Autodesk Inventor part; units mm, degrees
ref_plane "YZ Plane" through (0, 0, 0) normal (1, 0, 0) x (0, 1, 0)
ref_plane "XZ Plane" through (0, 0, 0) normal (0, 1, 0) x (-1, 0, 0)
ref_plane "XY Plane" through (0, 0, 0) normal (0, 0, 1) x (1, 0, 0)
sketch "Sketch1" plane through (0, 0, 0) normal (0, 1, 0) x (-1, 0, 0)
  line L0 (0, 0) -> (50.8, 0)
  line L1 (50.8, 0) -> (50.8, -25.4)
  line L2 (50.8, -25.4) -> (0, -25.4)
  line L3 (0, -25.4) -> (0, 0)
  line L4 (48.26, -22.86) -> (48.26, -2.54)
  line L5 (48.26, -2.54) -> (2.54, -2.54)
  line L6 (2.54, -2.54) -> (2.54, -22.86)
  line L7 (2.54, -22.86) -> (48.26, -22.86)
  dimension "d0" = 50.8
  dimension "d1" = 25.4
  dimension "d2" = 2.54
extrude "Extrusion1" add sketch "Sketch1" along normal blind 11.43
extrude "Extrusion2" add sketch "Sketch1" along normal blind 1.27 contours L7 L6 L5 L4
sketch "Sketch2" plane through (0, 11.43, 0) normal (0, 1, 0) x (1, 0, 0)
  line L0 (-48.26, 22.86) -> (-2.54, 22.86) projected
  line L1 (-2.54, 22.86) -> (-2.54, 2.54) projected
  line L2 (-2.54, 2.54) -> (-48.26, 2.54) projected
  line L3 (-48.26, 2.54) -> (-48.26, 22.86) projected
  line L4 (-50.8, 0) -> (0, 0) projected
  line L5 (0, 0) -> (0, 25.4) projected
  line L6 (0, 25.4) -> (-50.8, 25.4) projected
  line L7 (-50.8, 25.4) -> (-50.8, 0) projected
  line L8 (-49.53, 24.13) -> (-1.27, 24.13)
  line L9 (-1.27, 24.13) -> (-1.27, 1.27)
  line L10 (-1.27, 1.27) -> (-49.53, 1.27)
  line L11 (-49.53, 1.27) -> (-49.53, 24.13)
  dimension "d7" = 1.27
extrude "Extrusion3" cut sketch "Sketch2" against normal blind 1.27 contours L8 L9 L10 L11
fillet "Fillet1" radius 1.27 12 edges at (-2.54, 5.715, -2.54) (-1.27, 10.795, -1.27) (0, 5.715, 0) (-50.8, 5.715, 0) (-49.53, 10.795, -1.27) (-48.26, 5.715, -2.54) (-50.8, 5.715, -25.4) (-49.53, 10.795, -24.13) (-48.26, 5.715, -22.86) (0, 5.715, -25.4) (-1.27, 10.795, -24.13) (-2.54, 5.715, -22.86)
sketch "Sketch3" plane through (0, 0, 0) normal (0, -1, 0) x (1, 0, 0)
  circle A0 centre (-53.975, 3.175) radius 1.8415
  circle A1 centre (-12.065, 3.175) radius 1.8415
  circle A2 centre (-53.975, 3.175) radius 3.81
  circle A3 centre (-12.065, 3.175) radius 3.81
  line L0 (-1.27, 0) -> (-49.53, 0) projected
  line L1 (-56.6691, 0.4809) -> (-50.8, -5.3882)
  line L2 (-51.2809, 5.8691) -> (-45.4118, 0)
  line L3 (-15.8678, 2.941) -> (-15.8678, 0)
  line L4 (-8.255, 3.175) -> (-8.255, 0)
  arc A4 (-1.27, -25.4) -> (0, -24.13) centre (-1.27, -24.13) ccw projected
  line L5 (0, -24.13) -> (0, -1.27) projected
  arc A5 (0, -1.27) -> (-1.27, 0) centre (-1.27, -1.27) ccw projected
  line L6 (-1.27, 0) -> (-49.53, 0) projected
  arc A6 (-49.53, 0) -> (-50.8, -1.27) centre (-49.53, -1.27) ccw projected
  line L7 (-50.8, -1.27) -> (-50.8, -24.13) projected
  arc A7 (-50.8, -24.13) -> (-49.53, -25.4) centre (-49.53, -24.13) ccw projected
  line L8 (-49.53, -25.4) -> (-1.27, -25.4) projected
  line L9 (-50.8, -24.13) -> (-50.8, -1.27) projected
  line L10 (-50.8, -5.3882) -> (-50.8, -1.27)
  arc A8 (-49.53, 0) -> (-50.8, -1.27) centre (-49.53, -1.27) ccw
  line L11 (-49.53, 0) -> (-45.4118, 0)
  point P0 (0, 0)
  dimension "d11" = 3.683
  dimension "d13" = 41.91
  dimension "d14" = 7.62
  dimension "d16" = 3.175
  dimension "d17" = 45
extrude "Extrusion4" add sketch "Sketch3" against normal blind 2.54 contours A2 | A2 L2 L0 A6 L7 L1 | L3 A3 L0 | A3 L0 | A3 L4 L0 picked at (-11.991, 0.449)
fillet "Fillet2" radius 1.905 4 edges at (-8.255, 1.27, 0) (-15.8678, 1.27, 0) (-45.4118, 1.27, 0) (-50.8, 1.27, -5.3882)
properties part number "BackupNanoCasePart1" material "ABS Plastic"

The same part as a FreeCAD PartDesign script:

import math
import FreeCAD as App
import Part
import Sketcher

V = App.Vector
Q = App.Units.Quantity


def edges_at(feature, points):
    """Names of the edges that pass closest to the given points."""
    edges = feature.Shape.Edges
    near = lambda p: min(range(len(edges)), key=lambda i: edges[i].distToShape(Part.Vertex(*p))[0])
    return sorted({f"Edge{near(p) + 1}" for p in points})

doc = App.newDocument("Part")
params = doc.addObject("Spreadsheet::Sheet", "Params")
for row, (alias, value) in enumerate([
    ("sketch1_width", "2 in"),
    ("sketch1_height", "1 in"),
    ("pad1_length", "0.45 in"),
    ("sketch2_width", "1.8 in"),
    ("sketch2_height", "0.8 in"),
    ("pad2_length", "0.05 in"),
    ("sketch3_width", "1.9 in"),
    ("sketch3_height", "0.9 in"),
    ("pocket1_length", "0.05 in"),
    ("fillet_radius", "0.05 in"),
    ("sketch4_radius", "0.15 in"),
    ("sketch4_diameter", "0.145 in"),
    ("sketch4_height", "0.125 in"),
    ("sketch4_radius2", "0.05 in"),
    ("pad3_length", "0.1 in"),
    ("fillet2_radius", "0.075 in"),
], start=1):
    params.set(f"A{row}", alias)
    params.set(f"B{row}", "=" + value)
    params.setAlias(f"B{row}", alias)

body = doc.addObject("PartDesign::Body", "Body")

sketch1 = body.newObject("Sketcher::SketchObject", "Sketch")
sketch1.AttachmentSupport = (doc.getObject("XZ_Plane"), [""])
sketch1.MapMode = "FlatFace"
sketch1.addGeometry([
    Part.LineSegment(V(-51, 0, 0), V(0, 0, 0)),
    Part.LineSegment(V(0, 0, 0), V(0, -25, 0)),
    Part.LineSegment(V(0, -25, 0), V(-51, -25, 0)),
    Part.LineSegment(V(-51, -25, 0), V(-51, 0, 0)),
    Part.LineSegment(V(-48, -3, 0), V(-48, -23, 0)),
    Part.LineSegment(V(-48, -23, 0), V(-3, -23, 0)),
    Part.LineSegment(V(-3, -23, 0), V(-3, -3, 0)),
    Part.LineSegment(V(-3, -3, 0), V(-48, -3, 0)),
], False)
sketch1.addConstraint([
    Sketcher.Constraint("Coincident", 0, 2, 1, 1),
    Sketcher.Constraint("Coincident", 1, 2, 2, 1),
    Sketcher.Constraint("Coincident", 2, 2, 3, 1),
    Sketcher.Constraint("Coincident", 3, 2, 0, 1),
    Sketcher.Constraint("Coincident", 4, 2, 5, 1),
    Sketcher.Constraint("Coincident", 5, 2, 6, 1),
    Sketcher.Constraint("Coincident", 6, 2, 7, 1),
    Sketcher.Constraint("Coincident", 7, 2, 4, 1),
    Sketcher.Constraint("Horizontal", 0),
    Sketcher.Constraint("Vertical", 1),
    Sketcher.Constraint("Horizontal", 2),
    Sketcher.Constraint("Vertical", 3),
    Sketcher.Constraint("Vertical", 4),
    Sketcher.Constraint("Horizontal", 5),
    Sketcher.Constraint("Vertical", 6),
    Sketcher.Constraint("Horizontal", 7),
    Sketcher.Constraint("Coincident", 0, 2, -1, 1),
    Sketcher.Constraint("DistanceX", 0, 1, 0, 2, Q("2 in")),
    Sketcher.Constraint("DistanceY", 1, 2, 1, 1, Q("1 in")),
    Sketcher.Constraint("DistanceX", 5, 2, -1, 1, Q("0.1 in")),
    Sketcher.Constraint("DistanceY", 6, 2, -1, 1, Q("0.1 in")),
    Sketcher.Constraint("DistanceX", 2, 2, 4, 2, Q("0.1 in")),
    Sketcher.Constraint("DistanceY", 2, 2, 4, 2, Q("0.1 in")),
])
sketch1.setExpression("Constraints[17]", "Params.sketch1_width")
sketch1.setExpression("Constraints[18]", "Params.sketch1_height")
pad1 = body.newObject("PartDesign::Pad", "Pad")
pad1.Profile = sketch1
pad1.setExpression("Length", "Params.pad1_length")
pad1.Reversed = True

sketch2 = body.newObject("Sketcher::SketchObject", "Sketch001")
sketch2.AttachmentSupport = (doc.getObject("XZ_Plane"), [""])
sketch2.MapMode = "FlatFace"
sketch2.addGeometry([
    Part.LineSegment(V(-3, -23, 0), V(-48, -23, 0)),
    Part.LineSegment(V(-48, -23, 0), V(-48, -3, 0)),
    Part.LineSegment(V(-48, -3, 0), V(-3, -3, 0)),
    Part.LineSegment(V(-3, -3, 0), V(-3, -23, 0)),
], False)
sketch2.addConstraint([
    Sketcher.Constraint("Coincident", 0, 2, 1, 1),
    Sketcher.Constraint("Coincident", 1, 2, 2, 1),
    Sketcher.Constraint("Coincident", 2, 2, 3, 1),
    Sketcher.Constraint("Coincident", 3, 2, 0, 1),
    Sketcher.Constraint("Horizontal", 0),
    Sketcher.Constraint("Vertical", 1),
    Sketcher.Constraint("Horizontal", 2),
    Sketcher.Constraint("Vertical", 3),
    Sketcher.Constraint("DistanceY", 1, 2, -1, 1, Q("0.1 in")),
    Sketcher.Constraint("DistanceX", 2, 2, -1, 1, Q("0.1 in")),
    Sketcher.Constraint("DistanceX", 0, 2, 0, 1, Q("1.8 in")),
    Sketcher.Constraint("DistanceY", 1, 1, 1, 2, Q("0.8 in")),
])
sketch2.setExpression("Constraints[10]", "Params.sketch2_width")
sketch2.setExpression("Constraints[11]", "Params.sketch2_height")
pad2 = body.newObject("PartDesign::Pad", "Pad001")
pad2.Profile = sketch2
pad2.setExpression("Length", "Params.pad2_length")
pad2.Reversed = True

sketch3 = body.newObject("Sketcher::SketchObject", "Sketch002")
sketch3.AttachmentSupport = (doc.getObject("XZ_Plane"), [""])
sketch3.MapMode = "FlatFace"
sketch3.AttachmentOffset = App.Placement(V(0, 0, -0.45 * 25.4), App.Rotation())
sketch3.addGeometry([
    Part.LineSegment(V(-1, -24, 0), V(-50, -24, 0)),
    Part.LineSegment(V(-50, -24, 0), V(-50, -1, 0)),
    Part.LineSegment(V(-50, -1, 0), V(-1, -1, 0)),
    Part.LineSegment(V(-1, -1, 0), V(-1, -24, 0)),
    Part.LineSegment(V(-48, -3, 0), V(-48, -23, 0)),
    Part.LineSegment(V(-48, -23, 0), V(-3, -23, 0)),
    Part.LineSegment(V(-3, -23, 0), V(-3, -3, 0)),
    Part.LineSegment(V(-3, -3, 0), V(-48, -3, 0)),
], False)
sketch3.addConstraint([
    Sketcher.Constraint("Coincident", 0, 2, 1, 1),
    Sketcher.Constraint("Coincident", 1, 2, 2, 1),
    Sketcher.Constraint("Coincident", 2, 2, 3, 1),
    Sketcher.Constraint("Coincident", 3, 2, 0, 1),
    Sketcher.Constraint("Coincident", 4, 2, 5, 1),
    Sketcher.Constraint("Coincident", 5, 2, 6, 1),
    Sketcher.Constraint("Coincident", 6, 2, 7, 1),
    Sketcher.Constraint("Coincident", 7, 2, 4, 1),
    Sketcher.Constraint("Horizontal", 0),
    Sketcher.Constraint("Vertical", 1),
    Sketcher.Constraint("Horizontal", 2),
    Sketcher.Constraint("Vertical", 3),
    Sketcher.Constraint("Vertical", 4),
    Sketcher.Constraint("Horizontal", 5),
    Sketcher.Constraint("Vertical", 6),
    Sketcher.Constraint("Horizontal", 7),
    Sketcher.Constraint("DistanceY", 1, 2, -1, 1, Q("0.05 in")),
    Sketcher.Constraint("DistanceX", 2, 2, -1, 1, Q("0.05 in")),
    Sketcher.Constraint("DistanceX", 0, 2, 4, 2, Q("0.05 in")),
    Sketcher.Constraint("DistanceY", 0, 2, 4, 2, Q("0.05 in")),
    Sketcher.Constraint("DistanceX", 5, 2, 3, 2, Q("0.05 in")),
    Sketcher.Constraint("DistanceY", 6, 2, 2, 2, Q("0.05 in")),
    Sketcher.Constraint("DistanceX", 0, 2, 0, 1, Q("1.9 in")),
    Sketcher.Constraint("DistanceY", 1, 1, 1, 2, Q("0.9 in")),
])
sketch3.setExpression("Constraints[22]", "Params.sketch3_width")
sketch3.setExpression("Constraints[23]", "Params.sketch3_height")
pocket1 = body.newObject("PartDesign::Pocket", "Pocket")
pocket1.Profile = sketch3
pocket1.setExpression("Length", "Params.pocket1_length")
pocket1.Reversed = True
doc.recompute()

fillet = body.newObject("PartDesign::Fillet", "Fillet")
fillet.Base = (pocket1, edges_at(pocket1, [
    (-2.54, 5.715, -2.54),
    (-1.27, 10.795, -1.27),
    (0, 5.715, 0),
    (-50.8, 5.715, 0),
    (-49.53, 10.795, -1.27),
    (-48.26, 5.715, -2.54),
    (-50.8, 5.715, -25.4),
    (-49.53, 10.795, -24.13),
    (-48.26, 5.715, -22.86),
    (0, 5.715, -25.4),
    (-1.27, 10.795, -24.13),
    (-2.54, 5.715, -22.86),
]))
fillet.setExpression("Radius", "Params.fillet_radius")

sketch4 = body.newObject("Sketcher::SketchObject", "Sketch003")
sketch4.AttachmentSupport = (doc.getObject("XZ_Plane"), [""])
sketch4.MapMode = "FlatFace"
sketch4.addGeometry([
    Part.ArcOfCircle(Part.Circle(V(-54, 3.2, 0), V(0, 0, 1), 3.8), math.radians(45), math.radians(225)),
    Part.LineSegment(V(-56.7, 0.5, 0), V(-50.8, -5.4, 0)),
    Part.LineSegment(V(-50.8, -5.4, 0), V(-50.8, -1.3, 0)),
    Part.ArcOfCircle(Part.Circle(V(-49.5, -1.3, 0), V(0, 0, 1), 1.3), math.radians(90), math.radians(180)),
    Part.LineSegment(V(-49.5, 0, 0), V(-45.4, 0, 0)),
    Part.LineSegment(V(-45.4, 0, 0), V(-51.3, 5.9, 0)),
    Part.Circle(V(-54, 3.2, 0), V(0, 0, 1), 1.8),
    Part.LineSegment(V(-15.9, 2.9, 0), V(-15.9, 0, 0)),
    Part.LineSegment(V(-15.9, 0, 0), V(-8.3, 0, 0)),
    Part.LineSegment(V(-8.3, 0, 0), V(-8.3, 3.2, 0)),
    Part.ArcOfCircle(Part.Circle(V(-12.1, 3.2, 0), V(0, 0, 1), 3.8), math.radians(0), math.radians(184)),
    Part.Circle(V(-12.1, 3.2, 0), V(0, 0, 1), 1.8),
], False)
sketch4.addConstraint([
    Sketcher.Constraint("Tangent", 0, 2, 1, 1),
    Sketcher.Constraint("Coincident", 1, 2, 2, 1),
    Sketcher.Constraint("Tangent", 2, 2, 3, 2),
    Sketcher.Constraint("Tangent", 3, 1, 4, 1),
    Sketcher.Constraint("Coincident", 4, 2, 5, 1),
    Sketcher.Constraint("Tangent", 5, 2, 0, 1),
    Sketcher.Constraint("Coincident", 7, 2, 8, 1),
    Sketcher.Constraint("Coincident", 8, 2, 9, 1),
    Sketcher.Constraint("Tangent", 9, 2, 10, 1),
    Sketcher.Constraint("Coincident", 10, 2, 7, 1),
    Sketcher.Constraint("Vertical", 2),
    Sketcher.Constraint("Horizontal", 4),
    Sketcher.Constraint("Vertical", 7),
    Sketcher.Constraint("Horizontal", 8),
    Sketcher.Constraint("Vertical", 9),
    Sketcher.Constraint("Coincident", 6, 3, 0, 3),
    Sketcher.Constraint("Coincident", 11, 3, 10, 3),
    Sketcher.Constraint("Equal", 0, 10),
    Sketcher.Constraint("Equal", 6, 11),
    Sketcher.Constraint("PointOnObject", 3, 1, -1),
    Sketcher.Constraint("PointOnObject", 7, 2, -1),
    Sketcher.Constraint("Parallel", 1, 5),
    Sketcher.Constraint("Horizontal", 6, 3, 10, 3),
    Sketcher.Constraint("Equal", 4, 2),
    Sketcher.Constraint("Equal", 1, 5),
    Sketcher.Constraint("Radius", 0, Q("0.15 in")),
    Sketcher.Constraint("Diameter", 6, Q("0.145 in")),
    Sketcher.Constraint("DistanceY", 9, 1, 9, 2, Q("0.125 in")),
    Sketcher.Constraint("Radius", 3, Q("0.05 in")),
    Sketcher.Constraint("DistanceX", 0, 3, 10, 3, Q("1.65 in")),
    Sketcher.Constraint("DistanceX", 1, 2, -1, 1, Q("2 in")),
    Sketcher.Constraint("DistanceX", 8, 1, 8, 2, Q("7.6128 mm")),
])
sketch4.setExpression("Constraints[25]", "Params.sketch4_radius")
sketch4.setExpression("Constraints[26]", "Params.sketch4_diameter")
sketch4.setExpression("Constraints[27]", "Params.sketch4_height")
sketch4.setExpression("Constraints[28]", "Params.sketch4_radius2")
pad3 = body.newObject("PartDesign::Pad", "Pad002")
pad3.Profile = sketch4
pad3.setExpression("Length", "Params.pad3_length")
pad3.Reversed = True
doc.recompute()

fillet2 = body.newObject("PartDesign::Fillet", "Fillet001")
fillet2.Base = (pad3, edges_at(pad3, [
    (-8.255, 1.27, 0),
    (-15.868, 1.27, 0),
    (-45.412, 1.27, 0),
    (-50.8, 1.27, -5.388),
]))
fillet2.setExpression("Radius", "Params.fillet2_radius")

doc.recompute()
